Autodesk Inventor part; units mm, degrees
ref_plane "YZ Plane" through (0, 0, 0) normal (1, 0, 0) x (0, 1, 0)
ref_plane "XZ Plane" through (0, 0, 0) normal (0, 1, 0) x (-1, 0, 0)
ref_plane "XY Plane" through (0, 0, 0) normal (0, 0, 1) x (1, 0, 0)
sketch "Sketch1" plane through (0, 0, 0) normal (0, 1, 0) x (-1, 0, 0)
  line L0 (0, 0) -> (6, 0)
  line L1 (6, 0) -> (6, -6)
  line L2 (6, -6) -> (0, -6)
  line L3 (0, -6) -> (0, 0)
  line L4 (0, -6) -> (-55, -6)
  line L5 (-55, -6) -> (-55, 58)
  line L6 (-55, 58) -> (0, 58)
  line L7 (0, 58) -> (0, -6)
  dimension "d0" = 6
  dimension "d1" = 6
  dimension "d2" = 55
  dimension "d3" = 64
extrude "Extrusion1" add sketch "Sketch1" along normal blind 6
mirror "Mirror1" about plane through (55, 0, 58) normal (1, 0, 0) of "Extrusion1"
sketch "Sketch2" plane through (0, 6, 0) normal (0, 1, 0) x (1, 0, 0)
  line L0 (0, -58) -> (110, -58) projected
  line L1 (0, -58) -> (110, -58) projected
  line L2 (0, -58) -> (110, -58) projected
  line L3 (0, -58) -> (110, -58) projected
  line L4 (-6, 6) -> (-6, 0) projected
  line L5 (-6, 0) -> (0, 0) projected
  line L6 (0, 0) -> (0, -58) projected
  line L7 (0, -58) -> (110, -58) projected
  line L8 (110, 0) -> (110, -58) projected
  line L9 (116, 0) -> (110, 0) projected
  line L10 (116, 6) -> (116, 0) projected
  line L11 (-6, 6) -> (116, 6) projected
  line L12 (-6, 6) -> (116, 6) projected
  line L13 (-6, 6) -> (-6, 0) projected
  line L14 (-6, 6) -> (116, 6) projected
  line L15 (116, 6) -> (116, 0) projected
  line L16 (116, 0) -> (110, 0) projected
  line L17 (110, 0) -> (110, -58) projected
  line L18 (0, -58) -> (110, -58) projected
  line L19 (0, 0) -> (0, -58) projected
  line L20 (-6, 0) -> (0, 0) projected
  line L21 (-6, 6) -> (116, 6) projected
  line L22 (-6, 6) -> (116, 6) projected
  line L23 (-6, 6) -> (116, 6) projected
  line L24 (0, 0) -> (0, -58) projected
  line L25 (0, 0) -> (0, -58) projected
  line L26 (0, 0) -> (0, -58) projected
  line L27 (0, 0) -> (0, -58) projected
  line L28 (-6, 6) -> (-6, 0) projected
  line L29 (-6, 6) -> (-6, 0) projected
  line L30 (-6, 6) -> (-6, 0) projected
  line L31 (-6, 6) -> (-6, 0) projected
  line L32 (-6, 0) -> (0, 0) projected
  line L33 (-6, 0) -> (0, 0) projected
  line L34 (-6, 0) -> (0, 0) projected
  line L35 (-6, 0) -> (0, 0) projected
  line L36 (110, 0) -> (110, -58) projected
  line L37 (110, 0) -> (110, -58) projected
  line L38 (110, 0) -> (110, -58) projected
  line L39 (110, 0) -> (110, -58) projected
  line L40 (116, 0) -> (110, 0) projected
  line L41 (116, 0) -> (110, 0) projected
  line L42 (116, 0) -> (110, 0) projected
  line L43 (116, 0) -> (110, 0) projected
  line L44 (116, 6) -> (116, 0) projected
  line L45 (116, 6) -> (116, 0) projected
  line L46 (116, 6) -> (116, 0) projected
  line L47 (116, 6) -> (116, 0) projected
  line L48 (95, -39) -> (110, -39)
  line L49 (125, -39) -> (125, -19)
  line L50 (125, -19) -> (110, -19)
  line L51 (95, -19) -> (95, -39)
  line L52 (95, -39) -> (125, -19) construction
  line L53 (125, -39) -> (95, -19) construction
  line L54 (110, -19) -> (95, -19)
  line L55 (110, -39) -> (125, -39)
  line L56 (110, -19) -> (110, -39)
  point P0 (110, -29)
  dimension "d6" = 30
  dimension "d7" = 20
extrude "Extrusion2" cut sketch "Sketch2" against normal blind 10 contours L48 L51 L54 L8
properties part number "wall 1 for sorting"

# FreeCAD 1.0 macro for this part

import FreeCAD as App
import Part
import Sketcher
from FreeCAD import Vector


def add_polygon(sketch, points):
    """Adds a closed chain of lines whose ends are joined by coincident constraints."""
    first, n = sketch.GeometryCount, len(points)
    for a, b in zip(points, points[1:] + points[:1]):
        sketch.addGeometry(Part.LineSegment(App.Vector(*a, 0), App.Vector(*b, 0)), False)
    for i in range(n):
        sketch.addConstraint(Sketcher.Constraint("Coincident", first + i, 2, first + (i + 1) % n, 1))

doc = App.newDocument("Part")
body = doc.addObject("PartDesign::Body", "Body")

# Sketch on XZ plane
sketch1 = body.newObject("Sketcher::SketchObject", "Sketch")
sketch1.AttachmentSupport = (doc.getObject("XZ_Plane"), [""])
sketch1.MapMode = "FlatFace"
add_polygon(sketch1, [(-6, 0), (0, 0), (0, 58), (55, 58), (55, -6), (-6, -6)])  # lines 0-5
sketch1.addConstraint(Sketcher.Constraint("Horizontal", 0))
sketch1.addConstraint(Sketcher.Constraint("Vertical", 1))
sketch1.addConstraint(Sketcher.Constraint("Horizontal", 2))
sketch1.addConstraint(Sketcher.Constraint("Vertical", 3))
sketch1.addConstraint(Sketcher.Constraint("Horizontal", 4))
sketch1.addConstraint(Sketcher.Constraint("Vertical", 5))
sketch1.addConstraint(Sketcher.Constraint("Coincident", 0, 2, -1, 1))
sketch1.addConstraint(Sketcher.Constraint("Equal", 0, 5))
sketch1.addConstraint(Sketcher.Constraint("DistanceX", 0, 1, 0, 2, 6.0))
sketch1.addConstraint(Sketcher.Constraint("DistanceX", 2, 1, 2, 2, 55.0))
sketch1.addConstraint(Sketcher.Constraint("DistanceY", 3, 2, 3, 1, 64.0))
pad1 = body.newObject("PartDesign::Pad", "Pad")
pad1.Profile = sketch1
pad1.Length = 6
pad1.Reversed = True
doc.recompute()

datumplane = body.newObject("PartDesign::Plane", "DatumPlane")
datumplane.AttachmentSupport = (doc.getObject("YZ_Plane"), [""])
datumplane.MapMode = "FlatFace"
datumplane.AttachmentOffset = App.Placement(Vector(0, 0, 55), App.Rotation())
mirrored = body.newObject("PartDesign::Mirrored", "Mirrored")
mirrored.Originals = [pad1]
mirrored.MirrorPlane = (datumplane, [""])
body.Tip = mirrored

# Sketch on XZ plane
sketch2 = body.newObject("Sketcher::SketchObject", "Sketch001")
sketch2.AttachmentSupport = (doc.getObject("XZ_Plane"), [""])
sketch2.MapMode = "FlatFace"
sketch2.AttachmentOffset = App.Placement(Vector(0, 0, -6), App.Rotation())
add_polygon(sketch2, [(95, 39), (110, 39), (110, 19), (95, 19)])  # lines 0-3
sketch2.addConstraint(Sketcher.Constraint("Horizontal", 0))
sketch2.addConstraint(Sketcher.Constraint("Vertical", 1))
sketch2.addConstraint(Sketcher.Constraint("Horizontal", 2))
sketch2.addConstraint(Sketcher.Constraint("Vertical", 3))
sketch2.addConstraint(Sketcher.Constraint("DistanceY", 1, 2, 1, 1, 20.0))
sketch2.addConstraint(Sketcher.Constraint("DistanceX", 0, 1, 0, 2, 15.0))
sketch2.addConstraint(Sketcher.Constraint("DistanceX", -1, 1, 0, 2, 110.0))
sketch2.addConstraint(Sketcher.Constraint("DistanceY", -1, 1, 0, 2, 39.0))
pocket1 = body.newObject("PartDesign::Pocket", "Pocket")
pocket1.Profile = sketch2
pocket1.Length = 10
pocket1.Reversed = True

doc.recompute()
